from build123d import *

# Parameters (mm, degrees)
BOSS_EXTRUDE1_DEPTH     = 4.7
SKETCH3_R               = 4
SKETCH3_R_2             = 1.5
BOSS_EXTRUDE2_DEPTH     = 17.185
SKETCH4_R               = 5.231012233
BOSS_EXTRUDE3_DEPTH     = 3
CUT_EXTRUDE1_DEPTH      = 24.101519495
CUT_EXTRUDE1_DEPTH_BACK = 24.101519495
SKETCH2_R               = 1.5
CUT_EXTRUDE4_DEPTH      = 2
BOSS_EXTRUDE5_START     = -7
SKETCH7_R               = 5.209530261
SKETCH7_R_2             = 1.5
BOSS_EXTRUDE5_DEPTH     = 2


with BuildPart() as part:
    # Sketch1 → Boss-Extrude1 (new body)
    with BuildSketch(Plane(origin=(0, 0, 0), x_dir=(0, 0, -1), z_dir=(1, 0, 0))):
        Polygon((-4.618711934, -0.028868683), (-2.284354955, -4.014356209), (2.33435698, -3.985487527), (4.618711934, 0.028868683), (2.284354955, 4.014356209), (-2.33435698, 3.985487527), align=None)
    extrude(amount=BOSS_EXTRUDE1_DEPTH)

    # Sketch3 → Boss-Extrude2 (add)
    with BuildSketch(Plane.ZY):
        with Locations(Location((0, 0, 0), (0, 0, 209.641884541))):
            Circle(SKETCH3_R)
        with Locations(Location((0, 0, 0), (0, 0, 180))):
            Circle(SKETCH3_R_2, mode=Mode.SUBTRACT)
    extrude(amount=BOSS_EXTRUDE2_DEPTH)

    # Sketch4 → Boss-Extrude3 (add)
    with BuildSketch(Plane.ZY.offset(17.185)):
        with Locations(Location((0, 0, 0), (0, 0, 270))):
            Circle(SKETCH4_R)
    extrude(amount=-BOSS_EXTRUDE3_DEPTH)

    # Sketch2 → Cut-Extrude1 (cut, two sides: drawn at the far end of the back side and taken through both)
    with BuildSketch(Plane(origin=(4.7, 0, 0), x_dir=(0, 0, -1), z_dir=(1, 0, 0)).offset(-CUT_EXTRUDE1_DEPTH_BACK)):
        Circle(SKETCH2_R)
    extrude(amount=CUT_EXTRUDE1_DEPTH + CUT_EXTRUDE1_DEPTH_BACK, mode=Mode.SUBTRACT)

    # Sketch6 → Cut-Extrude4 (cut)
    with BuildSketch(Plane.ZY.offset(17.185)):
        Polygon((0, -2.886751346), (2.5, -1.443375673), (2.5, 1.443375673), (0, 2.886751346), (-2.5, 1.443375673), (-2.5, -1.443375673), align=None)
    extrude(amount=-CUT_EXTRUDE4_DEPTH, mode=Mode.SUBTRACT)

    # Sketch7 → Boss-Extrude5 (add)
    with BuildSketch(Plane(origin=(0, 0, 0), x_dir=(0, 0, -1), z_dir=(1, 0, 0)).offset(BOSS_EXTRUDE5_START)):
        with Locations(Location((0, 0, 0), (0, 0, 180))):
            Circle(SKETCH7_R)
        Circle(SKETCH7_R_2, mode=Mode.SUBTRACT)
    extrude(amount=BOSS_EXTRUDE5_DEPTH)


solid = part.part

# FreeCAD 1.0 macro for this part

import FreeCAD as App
import Part
import Sketcher
Q = App.Units.Quantity

doc = App.newDocument("Part")
body = doc.addObject("PartDesign::Body", "Body")

# Sketch on YZ plane
sketch1 = doc.addObject("Sketcher::SketchObject", "Sketch")
body.addObject(sketch1)
sketch1.AttachmentSupport = (doc.YZ_Plane, [""])
sketch1.MapMode = "FlatFace"
sketch1.addGeometry([
    Part.LineSegment(App.Vector(0, 4.6, 0), App.Vector(-4, 2.3, 0)),  # 0
    Part.LineSegment(App.Vector(-4, 2.3, 0), App.Vector(-4, -2.3, 0)),  # 1
    Part.LineSegment(App.Vector(-4, -2.3, 0), App.Vector(0, -4.6, 0)),  # 2
    Part.LineSegment(App.Vector(0, -4.6, 0), App.Vector(4, -2.3, 0)),  # 3
    Part.LineSegment(App.Vector(4, -2.3, 0), App.Vector(4, 2.3, 0)),  # 4
    Part.LineSegment(App.Vector(4, 2.3, 0), App.Vector(0, 4.6, 0)),  # 5
], False)
sketch1.addConstraint([
    Sketcher.Constraint("Coincident", 0, 2, 1, 1),
    Sketcher.Constraint("Coincident", 1, 2, 2, 1),
    Sketcher.Constraint("Coincident", 2, 2, 3, 1),
    Sketcher.Constraint("Coincident", 3, 2, 4, 1),
    Sketcher.Constraint("Coincident", 4, 2, 5, 1),
    Sketcher.Constraint("Coincident", 5, 2, 0, 1),
    Sketcher.Constraint("Symmetric", 0, 2, 3, 2, -1, 1),
    Sketcher.Constraint("Symmetric", 1, 2, 4, 2, -1, 1),
    Sketcher.Constraint("Symmetric", 2, 2, 5, 2, -1, 1),
    Sketcher.Constraint("Equal", 0, 1),
    Sketcher.Constraint("Equal", 1, 2),
    Sketcher.Constraint("DistanceX", -1, 1, 2, 2, 0.028869),
    Sketcher.Constraint("DistanceY", 2, 2, -1, 1, 4.618712),
    Sketcher.Constraint("DistanceX", 0, 2, 1, 2, 0.028869),
    Sketcher.Constraint("DistanceY", 1, 2, 0, 2, 4.618712),
])
pad1 = doc.addObject("PartDesign::Pad", "Pad")
body.addObject(pad1)
pad1.Profile = sketch1
pad1.Length = 4.7

# Sketch on YZ plane
sketch2 = doc.addObject("Sketcher::SketchObject", "Sketch001")
body.addObject(sketch2)
sketch2.AttachmentSupport = (doc.YZ_Plane, [""])
sketch2.MapMode = "FlatFace"
sketch2.addGeometry([
    Part.Circle(App.Vector(0, 0, 0), App.Vector(0, 0, 1), 4),
    Part.Circle(App.Vector(0, 0, 0), App.Vector(0, 0, 1), 1.5),
], False)
sketch2.addConstraint([
    Sketcher.Constraint("Coincident", 0, 3, -1, 1),
    Sketcher.Constraint("Coincident", 1, 3, -1, 1),
    Sketcher.Constraint("Diameter", 0, 8.0),
    Sketcher.Constraint("Diameter", 1, 3.0),
])
pad2 = doc.addObject("PartDesign::Pad", "Pad001")
body.addObject(pad2)
pad2.Profile = sketch2
pad2.Length = 17.185
pad2.Reversed = True

# Sketch on YZ plane
sketch3 = doc.addObject("Sketcher::SketchObject", "Sketch002")
body.addObject(sketch3)
sketch3.AttachmentSupport = (doc.YZ_Plane, [""])
sketch3.MapMode = "FlatFace"
sketch3.AttachmentOffset = App.Placement(App.Vector(0, 0, -17.185), App.Rotation())
sketch3.addGeometry(Part.Circle(App.Vector(0, 0, 0), App.Vector(0, 0, 1), 5), False)
sketch3.addConstraint([
    Sketcher.Constraint("Coincident", 0, 3, -1, 1),
    Sketcher.Constraint("Diameter", 0, 10.462024),
])
pad3 = doc.addObject("PartDesign::Pad", "Pad002")
body.addObject(pad3)
pad3.Profile = sketch3
pad3.Length = 3

# Sketch on YZ plane
sketch4 = doc.addObject("Sketcher::SketchObject", "Sketch003")
body.addObject(sketch4)
sketch4.AttachmentSupport = (doc.YZ_Plane, [""])
sketch4.MapMode = "FlatFace"
sketch4.AttachmentOffset = App.Placement(App.Vector(0, 0, 4.7), App.Rotation())
sketch4.addGeometry(Part.Circle(App.Vector(0, 0, 0), App.Vector(0, 0, 1), 1.5), False)
sketch4.addConstraint([
    Sketcher.Constraint("Coincident", 0, 3, -1, 1),
    Sketcher.Constraint("Diameter", 0, 3.0),
])
pocket1 = doc.addObject("PartDesign::Pocket", "Pocket")
body.addObject(pocket1)
pocket1.Profile = sketch4
pocket1.Type = "ThroughAll"
pocket1.Midplane = True

# Sketch on YZ plane
sketch5 = doc.addObject("Sketcher::SketchObject", "Sketch004")
body.addObject(sketch5)
sketch5.AttachmentSupport = (doc.YZ_Plane, [""])
sketch5.MapMode = "FlatFace"
sketch5.AttachmentOffset = App.Placement(App.Vector(0, 0, -17.185), App.Rotation())
sketch5.addGeometry([
    Part.LineSegment(App.Vector(-2.9, 0, 0), App.Vector(-1.4, 2.5, 0)),  # 0
    Part.LineSegment(App.Vector(-1.4, 2.5, 0), App.Vector(1.4, 2.5, 0)),  # 1
    Part.LineSegment(App.Vector(1.4, 2.5, 0), App.Vector(2.9, 0, 0)),  # 2
    Part.LineSegment(App.Vector(2.9, 0, 0), App.Vector(1.4, -2.5, 0)),  # 3
    Part.LineSegment(App.Vector(1.4, -2.5, 0), App.Vector(-1.4, -2.5, 0)),  # 4
    Part.LineSegment(App.Vector(-1.4, -2.5, 0), App.Vector(-2.9, 0, 0)),  # 5
], False)
sketch5.addConstraint([
    Sketcher.Constraint("Coincident", 0, 2, 1, 1),
    Sketcher.Constraint("Coincident", 1, 2, 2, 1),
    Sketcher.Constraint("Coincident", 2, 2, 3, 1),
    Sketcher.Constraint("Coincident", 3, 2, 4, 1),
    Sketcher.Constraint("Coincident", 4, 2, 5, 1),
    Sketcher.Constraint("Coincident", 5, 2, 0, 1),
    Sketcher.Constraint("Horizontal", 1),
    Sketcher.Constraint("Horizontal", 4),
    Sketcher.Constraint("Symmetric", 0, 2, 3, 2, -1, 1),
    Sketcher.Constraint("Symmetric", 2, 2, 5, 2, -1, 1),
    Sketcher.Constraint("PointOnObject", 2, 2, -1),
    Sketcher.Constraint("Parallel", 2, 5),
    Sketcher.Constraint("Vertical", 1, 2, 3, 2),
    Sketcher.Constraint("Angle", 0, Q("60 deg")),
    Sketcher.Constraint("DistanceY", 3, 2, 1, 2, 5.0),
    Sketcher.Constraint("DistanceX", 1, 1, 1, 2, 2.886751),
])
pocket2 = doc.addObject("PartDesign::Pocket", "Pocket001")
body.addObject(pocket2)
pocket2.Profile = sketch5
pocket2.Length = 2
pocket2.Reversed = True

# Sketch on YZ plane
sketch6 = doc.addObject("Sketcher::SketchObject", "Sketch005")
body.addObject(sketch6)
sketch6.AttachmentSupport = (doc.YZ_Plane, [""])
sketch6.MapMode = "FlatFace"
sketch6.AttachmentOffset = App.Placement(App.Vector(0, 0, -7), App.Rotation())
sketch6.addGeometry([
    Part.Circle(App.Vector(0, 0, 0), App.Vector(0, 0, 1), 5.2),
    Part.Circle(App.Vector(0, 0, 0), App.Vector(0, 0, 1), 1.5),
], False)
sketch6.addConstraint([
    Sketcher.Constraint("Coincident", 0, 3, -1, 1),
    Sketcher.Constraint("Coincident", 1, 3, -1, 1),
    Sketcher.Constraint("Diameter", 1, 3.0),
    Sketcher.Constraint("Diameter", 0, 10.419061),
])
pad4 = doc.addObject("PartDesign::Pad", "Pad003")
body.addObject(pad4)
pad4.Profile = sketch6
pad4.Length = 2

doc.recompute()
